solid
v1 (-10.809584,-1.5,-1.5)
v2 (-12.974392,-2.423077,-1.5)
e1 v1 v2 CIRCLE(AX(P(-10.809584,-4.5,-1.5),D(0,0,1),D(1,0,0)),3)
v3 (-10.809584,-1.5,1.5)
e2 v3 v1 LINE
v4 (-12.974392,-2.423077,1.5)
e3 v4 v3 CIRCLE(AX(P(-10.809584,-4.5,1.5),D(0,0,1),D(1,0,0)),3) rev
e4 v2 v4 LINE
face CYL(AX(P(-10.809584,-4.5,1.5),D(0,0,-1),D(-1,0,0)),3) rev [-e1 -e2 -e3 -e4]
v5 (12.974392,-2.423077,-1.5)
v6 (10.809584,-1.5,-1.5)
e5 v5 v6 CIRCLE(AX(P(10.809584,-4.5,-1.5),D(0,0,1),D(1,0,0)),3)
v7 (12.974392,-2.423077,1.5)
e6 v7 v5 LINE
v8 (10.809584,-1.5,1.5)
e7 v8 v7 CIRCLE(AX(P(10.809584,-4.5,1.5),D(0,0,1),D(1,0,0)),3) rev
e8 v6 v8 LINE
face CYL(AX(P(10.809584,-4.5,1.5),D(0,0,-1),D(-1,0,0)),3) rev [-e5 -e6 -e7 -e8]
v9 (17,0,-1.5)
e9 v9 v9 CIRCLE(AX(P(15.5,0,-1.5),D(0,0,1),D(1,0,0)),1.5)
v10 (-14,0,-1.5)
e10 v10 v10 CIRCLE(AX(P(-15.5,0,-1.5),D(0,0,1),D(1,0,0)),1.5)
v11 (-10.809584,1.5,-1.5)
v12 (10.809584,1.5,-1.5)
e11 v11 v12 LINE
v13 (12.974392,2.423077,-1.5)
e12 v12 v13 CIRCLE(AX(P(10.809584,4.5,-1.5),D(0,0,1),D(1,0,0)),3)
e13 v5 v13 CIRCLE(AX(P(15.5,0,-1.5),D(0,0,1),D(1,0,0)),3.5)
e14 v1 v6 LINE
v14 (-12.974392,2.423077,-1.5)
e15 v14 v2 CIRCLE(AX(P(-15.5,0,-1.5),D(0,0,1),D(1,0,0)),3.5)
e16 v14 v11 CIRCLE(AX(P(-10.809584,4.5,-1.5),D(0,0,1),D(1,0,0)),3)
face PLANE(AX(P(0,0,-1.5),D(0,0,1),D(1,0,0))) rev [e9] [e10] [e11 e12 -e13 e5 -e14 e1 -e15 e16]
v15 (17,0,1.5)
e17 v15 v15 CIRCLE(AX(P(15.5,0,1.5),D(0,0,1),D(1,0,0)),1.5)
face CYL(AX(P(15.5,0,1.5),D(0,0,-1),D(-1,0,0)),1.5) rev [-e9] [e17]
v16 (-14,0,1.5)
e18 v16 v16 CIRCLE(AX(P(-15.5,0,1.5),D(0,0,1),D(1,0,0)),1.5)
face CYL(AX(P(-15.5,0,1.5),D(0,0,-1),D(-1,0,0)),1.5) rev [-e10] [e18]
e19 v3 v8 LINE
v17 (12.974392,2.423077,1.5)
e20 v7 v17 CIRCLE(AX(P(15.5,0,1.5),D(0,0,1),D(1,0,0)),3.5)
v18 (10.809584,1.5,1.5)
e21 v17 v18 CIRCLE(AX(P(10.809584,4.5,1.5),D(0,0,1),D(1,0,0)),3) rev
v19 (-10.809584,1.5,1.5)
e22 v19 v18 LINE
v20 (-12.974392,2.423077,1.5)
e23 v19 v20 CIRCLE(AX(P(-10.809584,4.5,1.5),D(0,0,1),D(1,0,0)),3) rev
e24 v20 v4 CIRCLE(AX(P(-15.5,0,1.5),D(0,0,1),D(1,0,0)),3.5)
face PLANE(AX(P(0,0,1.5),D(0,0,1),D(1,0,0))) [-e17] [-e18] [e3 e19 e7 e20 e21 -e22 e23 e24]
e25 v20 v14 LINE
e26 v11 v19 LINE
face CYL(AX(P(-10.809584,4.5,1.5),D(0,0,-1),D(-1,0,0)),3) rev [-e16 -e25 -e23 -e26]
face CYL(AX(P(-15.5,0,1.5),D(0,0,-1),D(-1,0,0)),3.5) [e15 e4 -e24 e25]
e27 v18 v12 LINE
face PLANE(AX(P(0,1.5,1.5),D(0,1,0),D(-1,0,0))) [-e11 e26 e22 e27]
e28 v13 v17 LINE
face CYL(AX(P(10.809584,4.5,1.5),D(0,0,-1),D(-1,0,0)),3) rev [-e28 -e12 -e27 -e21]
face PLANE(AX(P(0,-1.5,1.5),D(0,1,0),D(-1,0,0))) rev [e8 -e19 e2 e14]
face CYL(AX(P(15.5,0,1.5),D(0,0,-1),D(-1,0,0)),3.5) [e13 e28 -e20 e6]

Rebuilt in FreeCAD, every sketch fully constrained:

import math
import FreeCAD as App
import Part
import Sketcher
Q = App.Units.Quantity


def edges_at(feature, points):
    """Names of the edges that pass closest to the given points."""
    edges = feature.Shape.Edges
    near = lambda p: min(range(len(edges)), key=lambda i: edges[i].distToShape(Part.Vertex(*p))[0])
    return sorted({f"Edge{near(p) + 1}" for p in points})

doc = App.newDocument("Part")
body = doc.addObject("PartDesign::Body", "Body")

# Sketch on XY plane
sketch1 = body.newObject("Sketcher::SketchObject", "Sketch")
sketch1.AttachmentSupport = (doc.getObject("XY_Plane"), [""])
sketch1.MapMode = "FlatFace"
sketch1.addGeometry([
    Part.ArcOfCircle(Part.Circle(App.Vector(-15.5, 0, 0), App.Vector(0, 0, 1), 3.5), math.radians(25), math.radians(335)),  # 0
    Part.LineSegment(App.Vector(-12.3, -1.5, 0), App.Vector(12.3, -1.5, 0)),  # 1
    Part.ArcOfCircle(Part.Circle(App.Vector(15.5, 0, 0), App.Vector(0, 0, 1), 3.5), math.radians(-155), math.radians(155)),  # 2
    Part.LineSegment(App.Vector(12.3, 1.5, 0), App.Vector(-12.3, 1.5, 0)),  # 3
    Part.Circle(App.Vector(-15.5, 0, 0), App.Vector(0, 0, 1), 1.5),  # 4
    Part.Circle(App.Vector(15.5, 0, 0), App.Vector(0, 0, 1), 1.5),  # 5
], False)
sketch1.addConstraint([
    Sketcher.Constraint("Coincident", 0, 2, 1, 1),
    Sketcher.Constraint("Coincident", 1, 2, 2, 1),
    Sketcher.Constraint("Coincident", 2, 2, 3, 1),
    Sketcher.Constraint("Coincident", 3, 2, 0, 1),
    Sketcher.Constraint("Horizontal", 1),
    Sketcher.Constraint("Horizontal", 3),
    Sketcher.Constraint("Coincident", 4, 3, 0, 3),
    Sketcher.Constraint("Coincident", 5, 3, 2, 3),
    Sketcher.Constraint("Equal", 0, 2),
    Sketcher.Constraint("Equal", 4, 5),
    Sketcher.Constraint("Symmetric", 0, 3, 2, 3, -1, 1),
    Sketcher.Constraint("Symmetric", 1, 2, 2, 2, -1),
    Sketcher.Constraint("Diameter", 4, Q("3 mm")),
    Sketcher.Constraint("Radius", 0, Q("3.5 mm")),
    Sketcher.Constraint("DistanceX", 0, 3, 2, 3, Q("31 mm")),
    Sketcher.Constraint("DistanceY", 1, 2, 2, 2, Q("3 mm")),
])
pad1 = body.newObject("PartDesign::Pad", "Pad")
pad1.Profile = sketch1
pad1.Length = 3
pad1.Midplane = True
doc.recompute()

fillet = body.newObject("PartDesign::Fillet", "Fillet")
fillet.Base = (pad1, edges_at(pad1, [
    (-12.338, 1.5, 0),
    (12.338, 1.5, 0),
    (12.338, -1.5, 0),
    (-12.338, -1.5, 0),
]))
fillet.Radius = 3

doc.recompute()
